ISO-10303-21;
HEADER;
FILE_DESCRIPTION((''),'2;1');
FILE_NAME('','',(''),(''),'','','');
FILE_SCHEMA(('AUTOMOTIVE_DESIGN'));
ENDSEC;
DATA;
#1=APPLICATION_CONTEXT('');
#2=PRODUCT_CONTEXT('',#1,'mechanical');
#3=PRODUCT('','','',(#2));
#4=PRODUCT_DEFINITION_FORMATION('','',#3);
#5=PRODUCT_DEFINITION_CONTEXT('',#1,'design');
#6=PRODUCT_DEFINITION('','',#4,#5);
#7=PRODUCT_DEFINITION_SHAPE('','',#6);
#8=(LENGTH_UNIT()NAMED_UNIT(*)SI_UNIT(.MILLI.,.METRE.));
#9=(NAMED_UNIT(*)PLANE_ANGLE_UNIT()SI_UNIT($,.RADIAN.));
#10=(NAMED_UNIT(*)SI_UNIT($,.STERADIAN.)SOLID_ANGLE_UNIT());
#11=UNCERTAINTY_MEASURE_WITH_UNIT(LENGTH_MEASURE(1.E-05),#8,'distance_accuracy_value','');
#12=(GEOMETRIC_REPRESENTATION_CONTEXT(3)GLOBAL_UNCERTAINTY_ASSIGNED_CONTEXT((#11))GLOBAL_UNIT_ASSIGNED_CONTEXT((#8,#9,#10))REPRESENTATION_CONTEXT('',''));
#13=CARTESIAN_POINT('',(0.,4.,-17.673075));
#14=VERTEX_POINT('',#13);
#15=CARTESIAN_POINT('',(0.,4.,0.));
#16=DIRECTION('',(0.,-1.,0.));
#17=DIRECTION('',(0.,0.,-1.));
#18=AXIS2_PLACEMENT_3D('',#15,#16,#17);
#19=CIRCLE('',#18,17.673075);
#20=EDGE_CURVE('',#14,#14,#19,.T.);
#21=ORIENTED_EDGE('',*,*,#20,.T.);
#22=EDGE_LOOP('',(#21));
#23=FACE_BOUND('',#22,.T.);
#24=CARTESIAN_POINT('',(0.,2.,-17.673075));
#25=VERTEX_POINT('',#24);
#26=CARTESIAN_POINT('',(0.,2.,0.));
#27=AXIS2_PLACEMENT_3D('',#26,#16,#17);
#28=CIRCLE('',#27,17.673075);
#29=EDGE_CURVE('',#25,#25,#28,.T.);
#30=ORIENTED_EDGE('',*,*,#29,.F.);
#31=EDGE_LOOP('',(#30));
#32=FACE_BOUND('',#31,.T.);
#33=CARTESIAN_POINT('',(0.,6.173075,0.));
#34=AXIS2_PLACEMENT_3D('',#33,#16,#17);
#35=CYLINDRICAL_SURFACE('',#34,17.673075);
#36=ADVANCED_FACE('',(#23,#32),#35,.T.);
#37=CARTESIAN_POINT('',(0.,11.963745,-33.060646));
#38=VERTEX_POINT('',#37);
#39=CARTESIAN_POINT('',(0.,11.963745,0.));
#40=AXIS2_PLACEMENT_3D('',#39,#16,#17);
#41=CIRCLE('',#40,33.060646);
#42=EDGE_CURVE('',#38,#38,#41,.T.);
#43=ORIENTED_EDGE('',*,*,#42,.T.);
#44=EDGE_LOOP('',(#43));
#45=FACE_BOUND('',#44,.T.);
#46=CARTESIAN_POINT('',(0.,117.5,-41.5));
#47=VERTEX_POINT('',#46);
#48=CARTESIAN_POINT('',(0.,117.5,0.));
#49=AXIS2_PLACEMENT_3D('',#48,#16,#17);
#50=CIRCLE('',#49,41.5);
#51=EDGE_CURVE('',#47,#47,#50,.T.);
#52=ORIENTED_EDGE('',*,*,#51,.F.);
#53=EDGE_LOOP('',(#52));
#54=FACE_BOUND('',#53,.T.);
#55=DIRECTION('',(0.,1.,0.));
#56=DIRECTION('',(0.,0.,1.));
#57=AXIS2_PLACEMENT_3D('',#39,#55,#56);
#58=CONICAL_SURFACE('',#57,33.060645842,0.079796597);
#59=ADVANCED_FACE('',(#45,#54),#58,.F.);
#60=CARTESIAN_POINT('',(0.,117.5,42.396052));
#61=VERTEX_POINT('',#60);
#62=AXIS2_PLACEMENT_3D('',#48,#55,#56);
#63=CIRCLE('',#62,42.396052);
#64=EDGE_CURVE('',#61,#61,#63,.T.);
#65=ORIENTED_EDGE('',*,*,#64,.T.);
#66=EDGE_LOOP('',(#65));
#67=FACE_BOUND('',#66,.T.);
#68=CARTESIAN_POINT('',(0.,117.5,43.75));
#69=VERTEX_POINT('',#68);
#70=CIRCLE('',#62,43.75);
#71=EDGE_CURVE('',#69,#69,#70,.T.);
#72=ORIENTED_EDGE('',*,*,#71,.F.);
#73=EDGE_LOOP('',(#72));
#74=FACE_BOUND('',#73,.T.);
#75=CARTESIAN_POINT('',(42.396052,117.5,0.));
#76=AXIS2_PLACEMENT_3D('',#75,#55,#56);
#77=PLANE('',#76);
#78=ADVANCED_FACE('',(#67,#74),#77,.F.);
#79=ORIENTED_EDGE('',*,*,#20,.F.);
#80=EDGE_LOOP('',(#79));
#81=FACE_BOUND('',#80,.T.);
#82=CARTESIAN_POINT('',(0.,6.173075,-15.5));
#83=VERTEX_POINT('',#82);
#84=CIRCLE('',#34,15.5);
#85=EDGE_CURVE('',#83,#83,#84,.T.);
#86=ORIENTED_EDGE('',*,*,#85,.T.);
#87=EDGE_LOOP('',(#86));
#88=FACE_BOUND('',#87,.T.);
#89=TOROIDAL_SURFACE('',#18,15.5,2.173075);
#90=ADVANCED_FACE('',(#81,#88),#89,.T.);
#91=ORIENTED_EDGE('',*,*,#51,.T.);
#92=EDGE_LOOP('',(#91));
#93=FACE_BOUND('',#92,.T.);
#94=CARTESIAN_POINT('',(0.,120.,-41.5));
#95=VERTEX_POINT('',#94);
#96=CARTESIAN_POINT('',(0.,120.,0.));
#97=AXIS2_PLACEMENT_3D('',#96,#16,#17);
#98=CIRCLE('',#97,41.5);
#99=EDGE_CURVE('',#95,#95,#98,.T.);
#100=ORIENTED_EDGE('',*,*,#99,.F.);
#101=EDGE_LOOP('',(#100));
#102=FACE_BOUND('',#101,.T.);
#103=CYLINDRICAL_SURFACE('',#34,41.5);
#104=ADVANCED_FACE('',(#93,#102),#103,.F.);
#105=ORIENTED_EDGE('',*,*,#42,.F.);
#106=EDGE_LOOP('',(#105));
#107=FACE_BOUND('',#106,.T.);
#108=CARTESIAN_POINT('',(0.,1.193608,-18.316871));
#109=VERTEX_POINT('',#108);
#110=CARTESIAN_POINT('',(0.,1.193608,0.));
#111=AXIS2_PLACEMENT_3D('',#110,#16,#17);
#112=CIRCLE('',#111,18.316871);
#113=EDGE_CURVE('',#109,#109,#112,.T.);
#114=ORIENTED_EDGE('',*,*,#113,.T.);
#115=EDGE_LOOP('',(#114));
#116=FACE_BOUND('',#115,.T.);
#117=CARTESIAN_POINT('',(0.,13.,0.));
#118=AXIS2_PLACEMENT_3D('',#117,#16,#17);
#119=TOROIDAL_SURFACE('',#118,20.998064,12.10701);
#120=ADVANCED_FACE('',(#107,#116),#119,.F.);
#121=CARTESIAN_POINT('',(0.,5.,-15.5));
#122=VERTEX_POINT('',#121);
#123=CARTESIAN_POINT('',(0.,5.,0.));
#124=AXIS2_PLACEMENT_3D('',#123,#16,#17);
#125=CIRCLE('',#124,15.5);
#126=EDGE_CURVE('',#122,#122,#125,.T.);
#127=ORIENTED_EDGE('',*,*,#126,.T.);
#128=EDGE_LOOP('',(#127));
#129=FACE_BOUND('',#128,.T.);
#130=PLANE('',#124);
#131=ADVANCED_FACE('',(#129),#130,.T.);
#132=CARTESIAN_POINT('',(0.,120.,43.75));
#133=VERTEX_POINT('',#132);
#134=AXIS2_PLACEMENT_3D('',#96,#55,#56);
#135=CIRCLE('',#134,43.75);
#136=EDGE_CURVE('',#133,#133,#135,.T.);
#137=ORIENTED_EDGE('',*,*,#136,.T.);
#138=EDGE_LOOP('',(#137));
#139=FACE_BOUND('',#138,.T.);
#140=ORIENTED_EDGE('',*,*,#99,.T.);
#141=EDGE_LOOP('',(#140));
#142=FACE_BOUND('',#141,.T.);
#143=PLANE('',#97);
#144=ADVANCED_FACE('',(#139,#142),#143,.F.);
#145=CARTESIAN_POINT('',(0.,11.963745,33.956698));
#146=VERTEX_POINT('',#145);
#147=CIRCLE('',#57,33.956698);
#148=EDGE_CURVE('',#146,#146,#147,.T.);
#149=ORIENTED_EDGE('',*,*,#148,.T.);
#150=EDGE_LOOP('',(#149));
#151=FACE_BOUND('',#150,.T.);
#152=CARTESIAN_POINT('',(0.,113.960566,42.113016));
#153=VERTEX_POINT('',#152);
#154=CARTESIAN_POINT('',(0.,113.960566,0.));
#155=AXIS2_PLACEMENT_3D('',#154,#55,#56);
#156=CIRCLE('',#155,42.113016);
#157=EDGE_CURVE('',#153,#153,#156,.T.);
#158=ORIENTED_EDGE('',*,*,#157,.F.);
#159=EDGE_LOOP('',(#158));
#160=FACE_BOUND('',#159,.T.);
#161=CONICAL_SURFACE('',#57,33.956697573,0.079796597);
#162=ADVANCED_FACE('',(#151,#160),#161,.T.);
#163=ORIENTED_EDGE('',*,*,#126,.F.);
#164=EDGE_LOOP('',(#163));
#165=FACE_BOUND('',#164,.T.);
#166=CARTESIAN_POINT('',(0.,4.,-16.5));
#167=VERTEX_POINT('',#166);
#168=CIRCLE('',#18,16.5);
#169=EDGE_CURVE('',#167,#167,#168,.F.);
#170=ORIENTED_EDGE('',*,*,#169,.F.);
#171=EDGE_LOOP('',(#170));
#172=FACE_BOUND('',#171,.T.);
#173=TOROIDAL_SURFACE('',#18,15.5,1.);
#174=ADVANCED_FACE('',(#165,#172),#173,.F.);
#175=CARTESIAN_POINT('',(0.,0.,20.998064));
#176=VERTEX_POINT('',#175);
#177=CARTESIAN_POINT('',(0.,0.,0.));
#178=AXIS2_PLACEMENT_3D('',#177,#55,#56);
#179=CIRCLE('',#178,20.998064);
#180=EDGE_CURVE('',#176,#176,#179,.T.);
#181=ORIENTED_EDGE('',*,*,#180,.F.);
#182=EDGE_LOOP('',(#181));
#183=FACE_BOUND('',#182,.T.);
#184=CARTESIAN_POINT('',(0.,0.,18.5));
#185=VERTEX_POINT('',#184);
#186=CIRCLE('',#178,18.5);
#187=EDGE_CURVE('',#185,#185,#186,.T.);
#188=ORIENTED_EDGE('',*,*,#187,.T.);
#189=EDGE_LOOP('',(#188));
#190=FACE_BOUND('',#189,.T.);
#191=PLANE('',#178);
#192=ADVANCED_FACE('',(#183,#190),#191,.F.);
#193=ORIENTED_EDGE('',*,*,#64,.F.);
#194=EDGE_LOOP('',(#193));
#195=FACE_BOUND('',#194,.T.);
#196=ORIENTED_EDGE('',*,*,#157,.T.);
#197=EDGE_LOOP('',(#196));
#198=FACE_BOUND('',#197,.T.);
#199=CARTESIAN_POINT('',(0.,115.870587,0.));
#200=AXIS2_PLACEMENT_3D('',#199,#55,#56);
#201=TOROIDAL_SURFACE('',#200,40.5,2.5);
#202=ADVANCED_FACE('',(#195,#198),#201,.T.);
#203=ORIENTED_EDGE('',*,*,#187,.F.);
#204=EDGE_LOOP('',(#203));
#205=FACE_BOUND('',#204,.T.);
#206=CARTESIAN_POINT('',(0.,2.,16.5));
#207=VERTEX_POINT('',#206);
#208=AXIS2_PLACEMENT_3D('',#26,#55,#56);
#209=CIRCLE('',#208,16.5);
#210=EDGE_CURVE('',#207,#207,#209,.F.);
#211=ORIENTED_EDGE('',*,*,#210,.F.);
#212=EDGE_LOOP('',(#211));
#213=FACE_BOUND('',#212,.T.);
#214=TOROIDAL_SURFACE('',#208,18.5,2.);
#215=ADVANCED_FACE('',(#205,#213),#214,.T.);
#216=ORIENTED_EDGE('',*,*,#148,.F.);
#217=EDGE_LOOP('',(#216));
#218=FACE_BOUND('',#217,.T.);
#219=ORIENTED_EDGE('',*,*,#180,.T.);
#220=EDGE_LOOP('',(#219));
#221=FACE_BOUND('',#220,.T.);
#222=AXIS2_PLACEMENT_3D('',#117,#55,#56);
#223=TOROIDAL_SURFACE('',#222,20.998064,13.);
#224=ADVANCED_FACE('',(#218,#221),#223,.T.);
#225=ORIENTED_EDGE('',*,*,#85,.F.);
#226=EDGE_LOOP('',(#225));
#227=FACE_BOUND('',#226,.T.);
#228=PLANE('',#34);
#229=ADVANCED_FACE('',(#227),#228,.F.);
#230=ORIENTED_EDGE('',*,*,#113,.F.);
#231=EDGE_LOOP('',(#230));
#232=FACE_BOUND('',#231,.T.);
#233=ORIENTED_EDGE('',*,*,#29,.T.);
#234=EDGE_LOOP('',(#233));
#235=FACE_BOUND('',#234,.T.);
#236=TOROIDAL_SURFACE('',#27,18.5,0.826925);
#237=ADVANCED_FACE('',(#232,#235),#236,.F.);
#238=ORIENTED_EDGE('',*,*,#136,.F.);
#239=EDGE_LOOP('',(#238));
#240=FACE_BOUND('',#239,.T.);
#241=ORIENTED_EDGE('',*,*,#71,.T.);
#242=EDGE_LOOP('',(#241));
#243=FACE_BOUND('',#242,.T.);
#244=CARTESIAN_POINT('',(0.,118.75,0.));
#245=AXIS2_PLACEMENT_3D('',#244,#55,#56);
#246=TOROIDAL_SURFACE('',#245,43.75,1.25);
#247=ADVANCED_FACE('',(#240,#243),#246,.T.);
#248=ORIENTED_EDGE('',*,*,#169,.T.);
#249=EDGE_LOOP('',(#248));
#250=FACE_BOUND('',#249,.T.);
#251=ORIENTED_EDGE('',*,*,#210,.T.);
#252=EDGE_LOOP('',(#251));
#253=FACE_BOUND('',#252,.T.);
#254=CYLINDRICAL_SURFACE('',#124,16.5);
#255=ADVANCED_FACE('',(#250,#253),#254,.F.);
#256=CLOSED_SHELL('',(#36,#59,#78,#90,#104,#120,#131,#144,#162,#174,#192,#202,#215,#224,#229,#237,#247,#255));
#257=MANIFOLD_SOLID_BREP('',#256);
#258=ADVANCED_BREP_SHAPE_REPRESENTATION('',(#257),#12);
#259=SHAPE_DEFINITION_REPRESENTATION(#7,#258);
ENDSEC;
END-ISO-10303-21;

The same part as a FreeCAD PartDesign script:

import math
import FreeCAD as App
import Part
import Sketcher

V = App.Vector
Q = App.Units.Quantity


def edges_at(feature, points):
    """Names of the edges that pass closest to the given points."""
    edges = feature.Shape.Edges
    near = lambda p: min(range(len(edges)), key=lambda i: edges[i].distToShape(Part.Vertex(*p))[0])
    return sorted({f"Edge{near(p) + 1}" for p in points})

doc = App.newDocument("Part")
body = doc.addObject("PartDesign::Body", "Body")

# Sketch on XY plane
sketch1 = doc.addObject("Sketcher::SketchObject", "Sketch")
body.addObject(sketch1)
sketch1.AttachmentSupport = (doc.XY_Plane, [""])
sketch1.MapMode = "FlatFace"
sketch1.addGeometry([
    Part.LineSegment(V(43.75, 120, 0), V(0, 120, 0)),  # 0
    Part.LineSegment(V(0, 120, 0), V(0, 0, 0)),  # 1
    Part.LineSegment(V(0, 0, 0), V(20.998064, 0, 0)),  # 2
    Part.ArcOfCircle(Part.Circle(V(20.998064, 13, 0), V(0, 0, 1), 13), math.radians(-90), math.radians(-4.572008)),  # 3
    Part.LineSegment(V(33.956698, 11.963745, 0), V(42.113016, 113.960566, 0)),  # 4
    Part.ArcOfCircle(Part.Circle(V(40.5, 115.870587, 0), V(0, 0, 1), 2.5), math.radians(-49.81885), math.radians(40.674833)),  # 5
    Part.LineSegment(V(42.396052, 117.5, 0), V(43.75, 117.5, 0)),  # 6
    Part.ArcOfCircle(Part.Circle(V(43.75, 118.75, 0), V(0, 0, 1), 1.25), math.radians(-90), math.radians(90)),  # 7
], False)
sketch1.addConstraint([
    Sketcher.Constraint("Coincident", 0, 2, 1, 1),
    Sketcher.Constraint("Coincident", 1, 2, 2, 1),
    Sketcher.Constraint("Tangent", 2, 2, 3, 1),
    Sketcher.Constraint("Tangent", 3, 2, 4, 1),
    Sketcher.Constraint("Coincident", 4, 2, 5, 1),
    Sketcher.Constraint("Coincident", 5, 2, 6, 1),
    Sketcher.Constraint("Tangent", 6, 2, 7, 1),
    Sketcher.Constraint("Tangent", 7, 2, 0, 1),
    Sketcher.Constraint("Horizontal", 0),
    Sketcher.Constraint("Vertical", 1),
    Sketcher.Constraint("Horizontal", 2),
    Sketcher.Constraint("Horizontal", 6),
    Sketcher.Constraint("Coincident", 1, 2, -1, 1),
    Sketcher.Constraint("Radius", 3, Q("13 mm")),
    Sketcher.Constraint("Radius", 5, Q("2.5 mm")),
    Sketcher.Constraint("DistanceY", 1, 2, 1, 1, Q("120 mm")),
    Sketcher.Constraint("Radius", 7, Q("1.25 mm")),
    Sketcher.Constraint("DistanceX", 0, 2, 0, 1, Q("43.75 mm")),
    Sketcher.Constraint("DistanceX", -1, 1, 5, 3, Q("40.5 mm")),
    Sketcher.Constraint("DistanceX", 6, 1, 6, 2, Q("1.353948 mm")),
    Sketcher.Constraint("DistanceX", 2, 1, 2, 2, Q("20.998064 mm")),
    Sketcher.Constraint("DistanceY", 3, 2, 5, 3, Q("103.906842 mm")),
])
revolution = doc.addObject("PartDesign::Revolution", "Revolution")
body.addObject(revolution)
revolution.Profile = sketch1
revolution.ReferenceAxis = (sketch1, ["V_Axis"])
revolution.Angle = 360

# Sketch on XZ plane
sketch2 = doc.addObject("Sketcher::SketchObject", "Sketch001")
body.addObject(sketch2)
sketch2.AttachmentSupport = (doc.XZ_Plane, [""])
sketch2.MapMode = "FlatFace"
sketch2.addGeometry(Part.Circle(V(0, 0, 0), V(0, 0, 1), 16.5), False)
sketch2.addConstraint([
    Sketcher.Constraint("Coincident", 0, 3, -1, 1),
    Sketcher.Constraint("Diameter", 0, Q("33 mm")),
])
pocket1 = doc.addObject("PartDesign::Pocket", "Pocket")
body.addObject(pocket1)
pocket1.Profile = sketch2
pocket1.Length = 5
doc.recompute()

fillet = doc.addObject("PartDesign::Fillet", "Fillet")
body.addObject(fillet)
fillet.Base = (pocket1, edges_at(pocket1, [(0, 0, 16.5)]))
fillet.Radius = 2
doc.recompute()

fillet2 = doc.addObject("PartDesign::Fillet", "Fillet001")
body.addObject(fillet2)
fillet2.Base = (fillet, edges_at(fillet, [(0, 5, 16.5)]))
fillet2.Radius = 1

# Sketch on YZ plane
sketch3 = doc.addObject("Sketcher::SketchObject", "Sketch002")
body.addObject(sketch3)
sketch3.AttachmentSupport = (doc.YZ_Plane, [""])
sketch3.MapMode = "FlatFace"
sketch3.addGeometry([
    Part.LineSegment(V(120, 0, 0), V(6.173075, 0, 0)),  # 0
    Part.LineSegment(V(6.173075, 0, 0), V(6.173075, -15.5, 0)),  # 1
    Part.ArcOfCircle(Part.Circle(V(4, -15.5, 0), V(0, 0, 1), 2.173075), math.radians(-90), math.radians(0)),  # 2
    Part.LineSegment(V(4, -17.673075, 0), V(2, -17.673075, 0)),  # 3
    Part.ArcOfCircle(Part.Circle(V(2, -18.5, 0), V(0, 0, 1), 0.826925), math.radians(90), math.radians(167.205321)),  # 4
    Part.ArcOfCircle(Part.Circle(V(13, -20.998064, 0), V(0, 0, 1), 12.10701), math.radians(167.205321), math.radians(265.08997)),  # 5
    Part.LineSegment(V(11.963745, -33.060646, 0), V(117.5, -41.5, 0)),  # 6
    Part.LineSegment(V(117.5, -41.5, 0), V(120, -41.5, 0)),  # 7
    Part.LineSegment(V(120, -41.5, 0), V(120, 0, 0)),  # 8
], False)
sketch3.addConstraint([
    Sketcher.Constraint("Coincident", 0, 2, 1, 1),
    Sketcher.Constraint("Tangent", 1, 2, 2, 2),
    Sketcher.Constraint("Tangent", 2, 1, 3, 1),
    Sketcher.Constraint("Tangent", 3, 2, 4, 1),
    Sketcher.Constraint("Tangent", 4, 2, 5, 1),
    Sketcher.Constraint("Coincident", 5, 2, 6, 1),
    Sketcher.Constraint("Coincident", 6, 2, 7, 1),
    Sketcher.Constraint("Coincident", 7, 2, 8, 1),
    Sketcher.Constraint("Coincident", 8, 2, 0, 1),
    Sketcher.Constraint("Horizontal", 0),
    Sketcher.Constraint("Vertical", 1),
    Sketcher.Constraint("Horizontal", 3),
    Sketcher.Constraint("Horizontal", 7),
    Sketcher.Constraint("Vertical", 8),
    Sketcher.Constraint("PointOnObject", 0, 2, -1),
    Sketcher.Constraint("DistanceX", 3, 2, 3, 1, Q("2 mm")),
    Sketcher.Constraint("DistanceX", 7, 1, 7, 2, Q("2.5 mm")),
    Sketcher.Constraint("DistanceY", 1, 2, 1, 1, Q("15.5 mm")),
    Sketcher.Constraint("DistanceY", 8, 1, 8, 2, Q("41.5 mm")),
    Sketcher.Constraint("DistanceX", -1, 1, 2, 3, Q("4 mm")),
    Sketcher.Constraint("DistanceX", -1, 1, 5, 3, Q("13 mm")),
    Sketcher.Constraint("DistanceX", -1, 1, 7, 2, Q("120 mm")),
    Sketcher.Constraint("DistanceY", 4, 3, 2, 3, Q("3 mm")),
    Sketcher.Constraint("Radius", 5, Q("12.10701 mm")),
    Sketcher.Constraint("Radius", 2, Q("2.173075 mm")),
    Sketcher.Constraint("Distance", 6, Q("105.87315 mm")),
])
groove = doc.addObject("PartDesign::Groove", "Groove")
body.addObject(groove)
groove.Profile = sketch3
groove.ReferenceAxis = (sketch3, ["H_Axis"])
groove.Angle = 360

doc.recompute()
